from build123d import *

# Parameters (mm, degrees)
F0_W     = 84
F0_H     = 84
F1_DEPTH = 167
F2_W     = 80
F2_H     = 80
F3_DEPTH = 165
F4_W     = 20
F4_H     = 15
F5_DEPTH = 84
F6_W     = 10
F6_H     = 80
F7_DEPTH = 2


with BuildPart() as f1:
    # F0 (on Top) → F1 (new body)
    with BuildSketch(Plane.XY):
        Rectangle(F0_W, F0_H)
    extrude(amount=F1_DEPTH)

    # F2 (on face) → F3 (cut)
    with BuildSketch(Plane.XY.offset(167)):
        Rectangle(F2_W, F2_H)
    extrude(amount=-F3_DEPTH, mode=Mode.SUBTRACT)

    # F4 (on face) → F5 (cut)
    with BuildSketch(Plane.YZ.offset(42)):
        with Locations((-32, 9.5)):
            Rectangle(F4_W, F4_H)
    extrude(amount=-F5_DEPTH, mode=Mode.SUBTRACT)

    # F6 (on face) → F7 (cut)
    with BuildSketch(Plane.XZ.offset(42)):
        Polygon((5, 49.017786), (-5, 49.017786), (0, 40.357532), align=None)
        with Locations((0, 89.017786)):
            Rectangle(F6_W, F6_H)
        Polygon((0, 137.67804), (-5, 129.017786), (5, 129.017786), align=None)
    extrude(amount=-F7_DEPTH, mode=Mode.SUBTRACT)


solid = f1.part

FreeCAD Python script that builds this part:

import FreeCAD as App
import Part
import Sketcher

V = App.Vector
Q = App.Units.Quantity

doc = App.newDocument("Part")
params = doc.addObject("Spreadsheet::Sheet", "Params")
for row, (alias, value) in enumerate([
    ("sketch1_width", "84 mm"),
    ("pad1_length", "167 mm"),
    ("sketch2_width", "80 mm"),
    ("pocket1_length", "165 mm"),
    ("sketch3_width", "20 mm"),
    ("sketch3_height", "15 mm"),
    ("pocket2_length", "84 mm"),
    ("sketch4_height", "80 mm"),
    ("sketch4_length", "10 mm"),
    ("pocket3_length", "2 mm"),
], start=1):
    params.set(f"A{row}", alias)
    params.set(f"B{row}", "=" + value)
    params.setAlias(f"B{row}", alias)

body = doc.addObject("PartDesign::Body", "Body")

# Sketch on XY plane
sketch1 = doc.addObject("Sketcher::SketchObject", "Sketch")
body.addObject(sketch1)
sketch1.AttachmentSupport = (doc.XY_Plane, [""])
sketch1.MapMode = "FlatFace"
sketch1.addGeometry([
    Part.LineSegment(V(-42, 42, 0), V(-42, -42, 0)),
    Part.LineSegment(V(-42, -42, 0), V(42, -42, 0)),
    Part.LineSegment(V(42, -42, 0), V(42, 42, 0)),
    Part.LineSegment(V(42, 42, 0), V(-42, 42, 0)),
], False)
sketch1.addConstraint([
    Sketcher.Constraint("Coincident", 0, 2, 1, 1),
    Sketcher.Constraint("Coincident", 1, 2, 2, 1),
    Sketcher.Constraint("Coincident", 2, 2, 3, 1),
    Sketcher.Constraint("Coincident", 3, 2, 0, 1),
    Sketcher.Constraint("Vertical", 0),
    Sketcher.Constraint("Horizontal", 1),
    Sketcher.Constraint("Vertical", 2),
    Sketcher.Constraint("Horizontal", 3),
    Sketcher.Constraint("Symmetric", 0, 2, 2, 2, -1, 1),
    Sketcher.Constraint("Equal", 3, 0),
    Sketcher.Constraint("DistanceX", 1, 1, 1, 2, Q("84 mm")),
])
sketch1.setExpression("Constraints[10]", "Params.sketch1_width")
pad1 = doc.addObject("PartDesign::Pad", "Pad")
body.addObject(pad1)
pad1.Profile = sketch1
pad1.setExpression("Length", "Params.pad1_length")

# Sketch on XY plane
sketch2 = doc.addObject("Sketcher::SketchObject", "Sketch001")
body.addObject(sketch2)
sketch2.AttachmentSupport = (doc.XY_Plane, [""])
sketch2.MapMode = "FlatFace"
sketch2.AttachmentOffset = App.Placement(V(0, 0, 167), App.Rotation())
sketch2.addGeometry([
    Part.LineSegment(V(-40, 40, 0), V(-40, -40, 0)),
    Part.LineSegment(V(-40, -40, 0), V(40, -40, 0)),
    Part.LineSegment(V(40, -40, 0), V(40, 40, 0)),
    Part.LineSegment(V(40, 40, 0), V(-40, 40, 0)),
], False)
sketch2.addConstraint([
    Sketcher.Constraint("Coincident", 0, 2, 1, 1),
    Sketcher.Constraint("Coincident", 1, 2, 2, 1),
    Sketcher.Constraint("Coincident", 2, 2, 3, 1),
    Sketcher.Constraint("Coincident", 3, 2, 0, 1),
    Sketcher.Constraint("Vertical", 0),
    Sketcher.Constraint("Horizontal", 1),
    Sketcher.Constraint("Vertical", 2),
    Sketcher.Constraint("Horizontal", 3),
    Sketcher.Constraint("Symmetric", 0, 2, 2, 2, -1, 1),
    Sketcher.Constraint("Equal", 3, 0),
    Sketcher.Constraint("DistanceX", 1, 1, 1, 2, Q("80 mm")),
])
sketch2.setExpression("Constraints[10]", "Params.sketch2_width")
pocket1 = doc.addObject("PartDesign::Pocket", "Pocket")
body.addObject(pocket1)
pocket1.Profile = sketch2
pocket1.setExpression("Length", "Params.pocket1_length")

# Sketch on YZ plane
sketch3 = doc.addObject("Sketcher::SketchObject", "Sketch002")
body.addObject(sketch3)
sketch3.AttachmentSupport = (doc.YZ_Plane, [""])
sketch3.MapMode = "FlatFace"
sketch3.AttachmentOffset = App.Placement(V(0, 0, 42), App.Rotation())
sketch3.addGeometry([
    Part.LineSegment(V(-42, 17, 0), V(-42, 2, 0)),
    Part.LineSegment(V(-42, 2, 0), V(-22, 2, 0)),
    Part.LineSegment(V(-22, 2, 0), V(-22, 17, 0)),
    Part.LineSegment(V(-22, 17, 0), V(-42, 17, 0)),
], False)
sketch3.addConstraint([
    Sketcher.Constraint("Coincident", 0, 2, 1, 1),
    Sketcher.Constraint("Coincident", 1, 2, 2, 1),
    Sketcher.Constraint("Coincident", 2, 2, 3, 1),
    Sketcher.Constraint("Coincident", 3, 2, 0, 1),
    Sketcher.Constraint("Vertical", 0),
    Sketcher.Constraint("Horizontal", 1),
    Sketcher.Constraint("Vertical", 2),
    Sketcher.Constraint("Horizontal", 3),
    Sketcher.Constraint("DistanceX", 1, 1, 1, 2, Q("20 mm")),
    Sketcher.Constraint("DistanceY", 0, 2, 0, 1, Q("15 mm")),
    Sketcher.Constraint("DistanceX", 0, 2, -1, 1, Q("42 mm")),
    Sketcher.Constraint("DistanceY", -1, 1, 0, 2, Q("2 mm")),
])
sketch3.setExpression("Constraints[8]", "Params.sketch3_width")
sketch3.setExpression("Constraints[9]", "Params.sketch3_height")
pocket2 = doc.addObject("PartDesign::Pocket", "Pocket001")
body.addObject(pocket2)
pocket2.Profile = sketch3
pocket2.setExpression("Length", "Params.pocket2_length")

# Sketch on XZ plane
sketch4 = doc.addObject("Sketcher::SketchObject", "Sketch003")
body.addObject(sketch4)
sketch4.AttachmentSupport = (doc.XZ_Plane, [""])
sketch4.MapMode = "FlatFace"
sketch4.AttachmentOffset = App.Placement(V(0, 0, 42), App.Rotation())
sketch4.addGeometry([
    Part.LineSegment(V(-5, 49, 0), V(0, 40, 0)),  # 0
    Part.LineSegment(V(0, 40, 0), V(5, 49, 0)),  # 1
    Part.LineSegment(V(5, 49, 0), V(5, 129, 0)),  # 2
    Part.LineSegment(V(5, 129, 0), V(0, 138, 0)),  # 3
    Part.LineSegment(V(0, 138, 0), V(-5, 129, 0)),  # 4
    Part.LineSegment(V(-5, 129, 0), V(-5, 49, 0)),  # 5
], False)
sketch4.addConstraint([
    Sketcher.Constraint("Coincident", 0, 2, 1, 1),
    Sketcher.Constraint("Coincident", 1, 2, 2, 1),
    Sketcher.Constraint("Coincident", 2, 2, 3, 1),
    Sketcher.Constraint("Coincident", 3, 2, 4, 1),
    Sketcher.Constraint("Coincident", 4, 2, 5, 1),
    Sketcher.Constraint("Coincident", 5, 2, 0, 1),
    Sketcher.Constraint("Vertical", 2),
    Sketcher.Constraint("Vertical", 5),
    Sketcher.Constraint("Symmetric", 2, 2, 4, 2, -2),
    Sketcher.Constraint("PointOnObject", 0, 2, -2),
    Sketcher.Constraint("PointOnObject", 3, 2, -2),
    Sketcher.Constraint("Parallel", 0, 3),
    Sketcher.Constraint("Parallel", 1, 4),
    Sketcher.Constraint("DistanceY", 2, 1, 2, 2, Q("80 mm")),
    Sketcher.Constraint("Angle", 0, Q("-60 deg")),
    Sketcher.Constraint("Distance", 0, Q("10 mm")),
    Sketcher.Constraint("DistanceY", -1, 1, 3, 2, Q("137.67804 mm")),
])
sketch4.setExpression("Constraints[13]", "Params.sketch4_height")
sketch4.setExpression("Constraints[15]", "Params.sketch4_length")
pocket3 = doc.addObject("PartDesign::Pocket", "Pocket002")
body.addObject(pocket3)
pocket3.Profile = sketch4
pocket3.setExpression("Length", "Params.pocket3_length")

doc.recompute()
